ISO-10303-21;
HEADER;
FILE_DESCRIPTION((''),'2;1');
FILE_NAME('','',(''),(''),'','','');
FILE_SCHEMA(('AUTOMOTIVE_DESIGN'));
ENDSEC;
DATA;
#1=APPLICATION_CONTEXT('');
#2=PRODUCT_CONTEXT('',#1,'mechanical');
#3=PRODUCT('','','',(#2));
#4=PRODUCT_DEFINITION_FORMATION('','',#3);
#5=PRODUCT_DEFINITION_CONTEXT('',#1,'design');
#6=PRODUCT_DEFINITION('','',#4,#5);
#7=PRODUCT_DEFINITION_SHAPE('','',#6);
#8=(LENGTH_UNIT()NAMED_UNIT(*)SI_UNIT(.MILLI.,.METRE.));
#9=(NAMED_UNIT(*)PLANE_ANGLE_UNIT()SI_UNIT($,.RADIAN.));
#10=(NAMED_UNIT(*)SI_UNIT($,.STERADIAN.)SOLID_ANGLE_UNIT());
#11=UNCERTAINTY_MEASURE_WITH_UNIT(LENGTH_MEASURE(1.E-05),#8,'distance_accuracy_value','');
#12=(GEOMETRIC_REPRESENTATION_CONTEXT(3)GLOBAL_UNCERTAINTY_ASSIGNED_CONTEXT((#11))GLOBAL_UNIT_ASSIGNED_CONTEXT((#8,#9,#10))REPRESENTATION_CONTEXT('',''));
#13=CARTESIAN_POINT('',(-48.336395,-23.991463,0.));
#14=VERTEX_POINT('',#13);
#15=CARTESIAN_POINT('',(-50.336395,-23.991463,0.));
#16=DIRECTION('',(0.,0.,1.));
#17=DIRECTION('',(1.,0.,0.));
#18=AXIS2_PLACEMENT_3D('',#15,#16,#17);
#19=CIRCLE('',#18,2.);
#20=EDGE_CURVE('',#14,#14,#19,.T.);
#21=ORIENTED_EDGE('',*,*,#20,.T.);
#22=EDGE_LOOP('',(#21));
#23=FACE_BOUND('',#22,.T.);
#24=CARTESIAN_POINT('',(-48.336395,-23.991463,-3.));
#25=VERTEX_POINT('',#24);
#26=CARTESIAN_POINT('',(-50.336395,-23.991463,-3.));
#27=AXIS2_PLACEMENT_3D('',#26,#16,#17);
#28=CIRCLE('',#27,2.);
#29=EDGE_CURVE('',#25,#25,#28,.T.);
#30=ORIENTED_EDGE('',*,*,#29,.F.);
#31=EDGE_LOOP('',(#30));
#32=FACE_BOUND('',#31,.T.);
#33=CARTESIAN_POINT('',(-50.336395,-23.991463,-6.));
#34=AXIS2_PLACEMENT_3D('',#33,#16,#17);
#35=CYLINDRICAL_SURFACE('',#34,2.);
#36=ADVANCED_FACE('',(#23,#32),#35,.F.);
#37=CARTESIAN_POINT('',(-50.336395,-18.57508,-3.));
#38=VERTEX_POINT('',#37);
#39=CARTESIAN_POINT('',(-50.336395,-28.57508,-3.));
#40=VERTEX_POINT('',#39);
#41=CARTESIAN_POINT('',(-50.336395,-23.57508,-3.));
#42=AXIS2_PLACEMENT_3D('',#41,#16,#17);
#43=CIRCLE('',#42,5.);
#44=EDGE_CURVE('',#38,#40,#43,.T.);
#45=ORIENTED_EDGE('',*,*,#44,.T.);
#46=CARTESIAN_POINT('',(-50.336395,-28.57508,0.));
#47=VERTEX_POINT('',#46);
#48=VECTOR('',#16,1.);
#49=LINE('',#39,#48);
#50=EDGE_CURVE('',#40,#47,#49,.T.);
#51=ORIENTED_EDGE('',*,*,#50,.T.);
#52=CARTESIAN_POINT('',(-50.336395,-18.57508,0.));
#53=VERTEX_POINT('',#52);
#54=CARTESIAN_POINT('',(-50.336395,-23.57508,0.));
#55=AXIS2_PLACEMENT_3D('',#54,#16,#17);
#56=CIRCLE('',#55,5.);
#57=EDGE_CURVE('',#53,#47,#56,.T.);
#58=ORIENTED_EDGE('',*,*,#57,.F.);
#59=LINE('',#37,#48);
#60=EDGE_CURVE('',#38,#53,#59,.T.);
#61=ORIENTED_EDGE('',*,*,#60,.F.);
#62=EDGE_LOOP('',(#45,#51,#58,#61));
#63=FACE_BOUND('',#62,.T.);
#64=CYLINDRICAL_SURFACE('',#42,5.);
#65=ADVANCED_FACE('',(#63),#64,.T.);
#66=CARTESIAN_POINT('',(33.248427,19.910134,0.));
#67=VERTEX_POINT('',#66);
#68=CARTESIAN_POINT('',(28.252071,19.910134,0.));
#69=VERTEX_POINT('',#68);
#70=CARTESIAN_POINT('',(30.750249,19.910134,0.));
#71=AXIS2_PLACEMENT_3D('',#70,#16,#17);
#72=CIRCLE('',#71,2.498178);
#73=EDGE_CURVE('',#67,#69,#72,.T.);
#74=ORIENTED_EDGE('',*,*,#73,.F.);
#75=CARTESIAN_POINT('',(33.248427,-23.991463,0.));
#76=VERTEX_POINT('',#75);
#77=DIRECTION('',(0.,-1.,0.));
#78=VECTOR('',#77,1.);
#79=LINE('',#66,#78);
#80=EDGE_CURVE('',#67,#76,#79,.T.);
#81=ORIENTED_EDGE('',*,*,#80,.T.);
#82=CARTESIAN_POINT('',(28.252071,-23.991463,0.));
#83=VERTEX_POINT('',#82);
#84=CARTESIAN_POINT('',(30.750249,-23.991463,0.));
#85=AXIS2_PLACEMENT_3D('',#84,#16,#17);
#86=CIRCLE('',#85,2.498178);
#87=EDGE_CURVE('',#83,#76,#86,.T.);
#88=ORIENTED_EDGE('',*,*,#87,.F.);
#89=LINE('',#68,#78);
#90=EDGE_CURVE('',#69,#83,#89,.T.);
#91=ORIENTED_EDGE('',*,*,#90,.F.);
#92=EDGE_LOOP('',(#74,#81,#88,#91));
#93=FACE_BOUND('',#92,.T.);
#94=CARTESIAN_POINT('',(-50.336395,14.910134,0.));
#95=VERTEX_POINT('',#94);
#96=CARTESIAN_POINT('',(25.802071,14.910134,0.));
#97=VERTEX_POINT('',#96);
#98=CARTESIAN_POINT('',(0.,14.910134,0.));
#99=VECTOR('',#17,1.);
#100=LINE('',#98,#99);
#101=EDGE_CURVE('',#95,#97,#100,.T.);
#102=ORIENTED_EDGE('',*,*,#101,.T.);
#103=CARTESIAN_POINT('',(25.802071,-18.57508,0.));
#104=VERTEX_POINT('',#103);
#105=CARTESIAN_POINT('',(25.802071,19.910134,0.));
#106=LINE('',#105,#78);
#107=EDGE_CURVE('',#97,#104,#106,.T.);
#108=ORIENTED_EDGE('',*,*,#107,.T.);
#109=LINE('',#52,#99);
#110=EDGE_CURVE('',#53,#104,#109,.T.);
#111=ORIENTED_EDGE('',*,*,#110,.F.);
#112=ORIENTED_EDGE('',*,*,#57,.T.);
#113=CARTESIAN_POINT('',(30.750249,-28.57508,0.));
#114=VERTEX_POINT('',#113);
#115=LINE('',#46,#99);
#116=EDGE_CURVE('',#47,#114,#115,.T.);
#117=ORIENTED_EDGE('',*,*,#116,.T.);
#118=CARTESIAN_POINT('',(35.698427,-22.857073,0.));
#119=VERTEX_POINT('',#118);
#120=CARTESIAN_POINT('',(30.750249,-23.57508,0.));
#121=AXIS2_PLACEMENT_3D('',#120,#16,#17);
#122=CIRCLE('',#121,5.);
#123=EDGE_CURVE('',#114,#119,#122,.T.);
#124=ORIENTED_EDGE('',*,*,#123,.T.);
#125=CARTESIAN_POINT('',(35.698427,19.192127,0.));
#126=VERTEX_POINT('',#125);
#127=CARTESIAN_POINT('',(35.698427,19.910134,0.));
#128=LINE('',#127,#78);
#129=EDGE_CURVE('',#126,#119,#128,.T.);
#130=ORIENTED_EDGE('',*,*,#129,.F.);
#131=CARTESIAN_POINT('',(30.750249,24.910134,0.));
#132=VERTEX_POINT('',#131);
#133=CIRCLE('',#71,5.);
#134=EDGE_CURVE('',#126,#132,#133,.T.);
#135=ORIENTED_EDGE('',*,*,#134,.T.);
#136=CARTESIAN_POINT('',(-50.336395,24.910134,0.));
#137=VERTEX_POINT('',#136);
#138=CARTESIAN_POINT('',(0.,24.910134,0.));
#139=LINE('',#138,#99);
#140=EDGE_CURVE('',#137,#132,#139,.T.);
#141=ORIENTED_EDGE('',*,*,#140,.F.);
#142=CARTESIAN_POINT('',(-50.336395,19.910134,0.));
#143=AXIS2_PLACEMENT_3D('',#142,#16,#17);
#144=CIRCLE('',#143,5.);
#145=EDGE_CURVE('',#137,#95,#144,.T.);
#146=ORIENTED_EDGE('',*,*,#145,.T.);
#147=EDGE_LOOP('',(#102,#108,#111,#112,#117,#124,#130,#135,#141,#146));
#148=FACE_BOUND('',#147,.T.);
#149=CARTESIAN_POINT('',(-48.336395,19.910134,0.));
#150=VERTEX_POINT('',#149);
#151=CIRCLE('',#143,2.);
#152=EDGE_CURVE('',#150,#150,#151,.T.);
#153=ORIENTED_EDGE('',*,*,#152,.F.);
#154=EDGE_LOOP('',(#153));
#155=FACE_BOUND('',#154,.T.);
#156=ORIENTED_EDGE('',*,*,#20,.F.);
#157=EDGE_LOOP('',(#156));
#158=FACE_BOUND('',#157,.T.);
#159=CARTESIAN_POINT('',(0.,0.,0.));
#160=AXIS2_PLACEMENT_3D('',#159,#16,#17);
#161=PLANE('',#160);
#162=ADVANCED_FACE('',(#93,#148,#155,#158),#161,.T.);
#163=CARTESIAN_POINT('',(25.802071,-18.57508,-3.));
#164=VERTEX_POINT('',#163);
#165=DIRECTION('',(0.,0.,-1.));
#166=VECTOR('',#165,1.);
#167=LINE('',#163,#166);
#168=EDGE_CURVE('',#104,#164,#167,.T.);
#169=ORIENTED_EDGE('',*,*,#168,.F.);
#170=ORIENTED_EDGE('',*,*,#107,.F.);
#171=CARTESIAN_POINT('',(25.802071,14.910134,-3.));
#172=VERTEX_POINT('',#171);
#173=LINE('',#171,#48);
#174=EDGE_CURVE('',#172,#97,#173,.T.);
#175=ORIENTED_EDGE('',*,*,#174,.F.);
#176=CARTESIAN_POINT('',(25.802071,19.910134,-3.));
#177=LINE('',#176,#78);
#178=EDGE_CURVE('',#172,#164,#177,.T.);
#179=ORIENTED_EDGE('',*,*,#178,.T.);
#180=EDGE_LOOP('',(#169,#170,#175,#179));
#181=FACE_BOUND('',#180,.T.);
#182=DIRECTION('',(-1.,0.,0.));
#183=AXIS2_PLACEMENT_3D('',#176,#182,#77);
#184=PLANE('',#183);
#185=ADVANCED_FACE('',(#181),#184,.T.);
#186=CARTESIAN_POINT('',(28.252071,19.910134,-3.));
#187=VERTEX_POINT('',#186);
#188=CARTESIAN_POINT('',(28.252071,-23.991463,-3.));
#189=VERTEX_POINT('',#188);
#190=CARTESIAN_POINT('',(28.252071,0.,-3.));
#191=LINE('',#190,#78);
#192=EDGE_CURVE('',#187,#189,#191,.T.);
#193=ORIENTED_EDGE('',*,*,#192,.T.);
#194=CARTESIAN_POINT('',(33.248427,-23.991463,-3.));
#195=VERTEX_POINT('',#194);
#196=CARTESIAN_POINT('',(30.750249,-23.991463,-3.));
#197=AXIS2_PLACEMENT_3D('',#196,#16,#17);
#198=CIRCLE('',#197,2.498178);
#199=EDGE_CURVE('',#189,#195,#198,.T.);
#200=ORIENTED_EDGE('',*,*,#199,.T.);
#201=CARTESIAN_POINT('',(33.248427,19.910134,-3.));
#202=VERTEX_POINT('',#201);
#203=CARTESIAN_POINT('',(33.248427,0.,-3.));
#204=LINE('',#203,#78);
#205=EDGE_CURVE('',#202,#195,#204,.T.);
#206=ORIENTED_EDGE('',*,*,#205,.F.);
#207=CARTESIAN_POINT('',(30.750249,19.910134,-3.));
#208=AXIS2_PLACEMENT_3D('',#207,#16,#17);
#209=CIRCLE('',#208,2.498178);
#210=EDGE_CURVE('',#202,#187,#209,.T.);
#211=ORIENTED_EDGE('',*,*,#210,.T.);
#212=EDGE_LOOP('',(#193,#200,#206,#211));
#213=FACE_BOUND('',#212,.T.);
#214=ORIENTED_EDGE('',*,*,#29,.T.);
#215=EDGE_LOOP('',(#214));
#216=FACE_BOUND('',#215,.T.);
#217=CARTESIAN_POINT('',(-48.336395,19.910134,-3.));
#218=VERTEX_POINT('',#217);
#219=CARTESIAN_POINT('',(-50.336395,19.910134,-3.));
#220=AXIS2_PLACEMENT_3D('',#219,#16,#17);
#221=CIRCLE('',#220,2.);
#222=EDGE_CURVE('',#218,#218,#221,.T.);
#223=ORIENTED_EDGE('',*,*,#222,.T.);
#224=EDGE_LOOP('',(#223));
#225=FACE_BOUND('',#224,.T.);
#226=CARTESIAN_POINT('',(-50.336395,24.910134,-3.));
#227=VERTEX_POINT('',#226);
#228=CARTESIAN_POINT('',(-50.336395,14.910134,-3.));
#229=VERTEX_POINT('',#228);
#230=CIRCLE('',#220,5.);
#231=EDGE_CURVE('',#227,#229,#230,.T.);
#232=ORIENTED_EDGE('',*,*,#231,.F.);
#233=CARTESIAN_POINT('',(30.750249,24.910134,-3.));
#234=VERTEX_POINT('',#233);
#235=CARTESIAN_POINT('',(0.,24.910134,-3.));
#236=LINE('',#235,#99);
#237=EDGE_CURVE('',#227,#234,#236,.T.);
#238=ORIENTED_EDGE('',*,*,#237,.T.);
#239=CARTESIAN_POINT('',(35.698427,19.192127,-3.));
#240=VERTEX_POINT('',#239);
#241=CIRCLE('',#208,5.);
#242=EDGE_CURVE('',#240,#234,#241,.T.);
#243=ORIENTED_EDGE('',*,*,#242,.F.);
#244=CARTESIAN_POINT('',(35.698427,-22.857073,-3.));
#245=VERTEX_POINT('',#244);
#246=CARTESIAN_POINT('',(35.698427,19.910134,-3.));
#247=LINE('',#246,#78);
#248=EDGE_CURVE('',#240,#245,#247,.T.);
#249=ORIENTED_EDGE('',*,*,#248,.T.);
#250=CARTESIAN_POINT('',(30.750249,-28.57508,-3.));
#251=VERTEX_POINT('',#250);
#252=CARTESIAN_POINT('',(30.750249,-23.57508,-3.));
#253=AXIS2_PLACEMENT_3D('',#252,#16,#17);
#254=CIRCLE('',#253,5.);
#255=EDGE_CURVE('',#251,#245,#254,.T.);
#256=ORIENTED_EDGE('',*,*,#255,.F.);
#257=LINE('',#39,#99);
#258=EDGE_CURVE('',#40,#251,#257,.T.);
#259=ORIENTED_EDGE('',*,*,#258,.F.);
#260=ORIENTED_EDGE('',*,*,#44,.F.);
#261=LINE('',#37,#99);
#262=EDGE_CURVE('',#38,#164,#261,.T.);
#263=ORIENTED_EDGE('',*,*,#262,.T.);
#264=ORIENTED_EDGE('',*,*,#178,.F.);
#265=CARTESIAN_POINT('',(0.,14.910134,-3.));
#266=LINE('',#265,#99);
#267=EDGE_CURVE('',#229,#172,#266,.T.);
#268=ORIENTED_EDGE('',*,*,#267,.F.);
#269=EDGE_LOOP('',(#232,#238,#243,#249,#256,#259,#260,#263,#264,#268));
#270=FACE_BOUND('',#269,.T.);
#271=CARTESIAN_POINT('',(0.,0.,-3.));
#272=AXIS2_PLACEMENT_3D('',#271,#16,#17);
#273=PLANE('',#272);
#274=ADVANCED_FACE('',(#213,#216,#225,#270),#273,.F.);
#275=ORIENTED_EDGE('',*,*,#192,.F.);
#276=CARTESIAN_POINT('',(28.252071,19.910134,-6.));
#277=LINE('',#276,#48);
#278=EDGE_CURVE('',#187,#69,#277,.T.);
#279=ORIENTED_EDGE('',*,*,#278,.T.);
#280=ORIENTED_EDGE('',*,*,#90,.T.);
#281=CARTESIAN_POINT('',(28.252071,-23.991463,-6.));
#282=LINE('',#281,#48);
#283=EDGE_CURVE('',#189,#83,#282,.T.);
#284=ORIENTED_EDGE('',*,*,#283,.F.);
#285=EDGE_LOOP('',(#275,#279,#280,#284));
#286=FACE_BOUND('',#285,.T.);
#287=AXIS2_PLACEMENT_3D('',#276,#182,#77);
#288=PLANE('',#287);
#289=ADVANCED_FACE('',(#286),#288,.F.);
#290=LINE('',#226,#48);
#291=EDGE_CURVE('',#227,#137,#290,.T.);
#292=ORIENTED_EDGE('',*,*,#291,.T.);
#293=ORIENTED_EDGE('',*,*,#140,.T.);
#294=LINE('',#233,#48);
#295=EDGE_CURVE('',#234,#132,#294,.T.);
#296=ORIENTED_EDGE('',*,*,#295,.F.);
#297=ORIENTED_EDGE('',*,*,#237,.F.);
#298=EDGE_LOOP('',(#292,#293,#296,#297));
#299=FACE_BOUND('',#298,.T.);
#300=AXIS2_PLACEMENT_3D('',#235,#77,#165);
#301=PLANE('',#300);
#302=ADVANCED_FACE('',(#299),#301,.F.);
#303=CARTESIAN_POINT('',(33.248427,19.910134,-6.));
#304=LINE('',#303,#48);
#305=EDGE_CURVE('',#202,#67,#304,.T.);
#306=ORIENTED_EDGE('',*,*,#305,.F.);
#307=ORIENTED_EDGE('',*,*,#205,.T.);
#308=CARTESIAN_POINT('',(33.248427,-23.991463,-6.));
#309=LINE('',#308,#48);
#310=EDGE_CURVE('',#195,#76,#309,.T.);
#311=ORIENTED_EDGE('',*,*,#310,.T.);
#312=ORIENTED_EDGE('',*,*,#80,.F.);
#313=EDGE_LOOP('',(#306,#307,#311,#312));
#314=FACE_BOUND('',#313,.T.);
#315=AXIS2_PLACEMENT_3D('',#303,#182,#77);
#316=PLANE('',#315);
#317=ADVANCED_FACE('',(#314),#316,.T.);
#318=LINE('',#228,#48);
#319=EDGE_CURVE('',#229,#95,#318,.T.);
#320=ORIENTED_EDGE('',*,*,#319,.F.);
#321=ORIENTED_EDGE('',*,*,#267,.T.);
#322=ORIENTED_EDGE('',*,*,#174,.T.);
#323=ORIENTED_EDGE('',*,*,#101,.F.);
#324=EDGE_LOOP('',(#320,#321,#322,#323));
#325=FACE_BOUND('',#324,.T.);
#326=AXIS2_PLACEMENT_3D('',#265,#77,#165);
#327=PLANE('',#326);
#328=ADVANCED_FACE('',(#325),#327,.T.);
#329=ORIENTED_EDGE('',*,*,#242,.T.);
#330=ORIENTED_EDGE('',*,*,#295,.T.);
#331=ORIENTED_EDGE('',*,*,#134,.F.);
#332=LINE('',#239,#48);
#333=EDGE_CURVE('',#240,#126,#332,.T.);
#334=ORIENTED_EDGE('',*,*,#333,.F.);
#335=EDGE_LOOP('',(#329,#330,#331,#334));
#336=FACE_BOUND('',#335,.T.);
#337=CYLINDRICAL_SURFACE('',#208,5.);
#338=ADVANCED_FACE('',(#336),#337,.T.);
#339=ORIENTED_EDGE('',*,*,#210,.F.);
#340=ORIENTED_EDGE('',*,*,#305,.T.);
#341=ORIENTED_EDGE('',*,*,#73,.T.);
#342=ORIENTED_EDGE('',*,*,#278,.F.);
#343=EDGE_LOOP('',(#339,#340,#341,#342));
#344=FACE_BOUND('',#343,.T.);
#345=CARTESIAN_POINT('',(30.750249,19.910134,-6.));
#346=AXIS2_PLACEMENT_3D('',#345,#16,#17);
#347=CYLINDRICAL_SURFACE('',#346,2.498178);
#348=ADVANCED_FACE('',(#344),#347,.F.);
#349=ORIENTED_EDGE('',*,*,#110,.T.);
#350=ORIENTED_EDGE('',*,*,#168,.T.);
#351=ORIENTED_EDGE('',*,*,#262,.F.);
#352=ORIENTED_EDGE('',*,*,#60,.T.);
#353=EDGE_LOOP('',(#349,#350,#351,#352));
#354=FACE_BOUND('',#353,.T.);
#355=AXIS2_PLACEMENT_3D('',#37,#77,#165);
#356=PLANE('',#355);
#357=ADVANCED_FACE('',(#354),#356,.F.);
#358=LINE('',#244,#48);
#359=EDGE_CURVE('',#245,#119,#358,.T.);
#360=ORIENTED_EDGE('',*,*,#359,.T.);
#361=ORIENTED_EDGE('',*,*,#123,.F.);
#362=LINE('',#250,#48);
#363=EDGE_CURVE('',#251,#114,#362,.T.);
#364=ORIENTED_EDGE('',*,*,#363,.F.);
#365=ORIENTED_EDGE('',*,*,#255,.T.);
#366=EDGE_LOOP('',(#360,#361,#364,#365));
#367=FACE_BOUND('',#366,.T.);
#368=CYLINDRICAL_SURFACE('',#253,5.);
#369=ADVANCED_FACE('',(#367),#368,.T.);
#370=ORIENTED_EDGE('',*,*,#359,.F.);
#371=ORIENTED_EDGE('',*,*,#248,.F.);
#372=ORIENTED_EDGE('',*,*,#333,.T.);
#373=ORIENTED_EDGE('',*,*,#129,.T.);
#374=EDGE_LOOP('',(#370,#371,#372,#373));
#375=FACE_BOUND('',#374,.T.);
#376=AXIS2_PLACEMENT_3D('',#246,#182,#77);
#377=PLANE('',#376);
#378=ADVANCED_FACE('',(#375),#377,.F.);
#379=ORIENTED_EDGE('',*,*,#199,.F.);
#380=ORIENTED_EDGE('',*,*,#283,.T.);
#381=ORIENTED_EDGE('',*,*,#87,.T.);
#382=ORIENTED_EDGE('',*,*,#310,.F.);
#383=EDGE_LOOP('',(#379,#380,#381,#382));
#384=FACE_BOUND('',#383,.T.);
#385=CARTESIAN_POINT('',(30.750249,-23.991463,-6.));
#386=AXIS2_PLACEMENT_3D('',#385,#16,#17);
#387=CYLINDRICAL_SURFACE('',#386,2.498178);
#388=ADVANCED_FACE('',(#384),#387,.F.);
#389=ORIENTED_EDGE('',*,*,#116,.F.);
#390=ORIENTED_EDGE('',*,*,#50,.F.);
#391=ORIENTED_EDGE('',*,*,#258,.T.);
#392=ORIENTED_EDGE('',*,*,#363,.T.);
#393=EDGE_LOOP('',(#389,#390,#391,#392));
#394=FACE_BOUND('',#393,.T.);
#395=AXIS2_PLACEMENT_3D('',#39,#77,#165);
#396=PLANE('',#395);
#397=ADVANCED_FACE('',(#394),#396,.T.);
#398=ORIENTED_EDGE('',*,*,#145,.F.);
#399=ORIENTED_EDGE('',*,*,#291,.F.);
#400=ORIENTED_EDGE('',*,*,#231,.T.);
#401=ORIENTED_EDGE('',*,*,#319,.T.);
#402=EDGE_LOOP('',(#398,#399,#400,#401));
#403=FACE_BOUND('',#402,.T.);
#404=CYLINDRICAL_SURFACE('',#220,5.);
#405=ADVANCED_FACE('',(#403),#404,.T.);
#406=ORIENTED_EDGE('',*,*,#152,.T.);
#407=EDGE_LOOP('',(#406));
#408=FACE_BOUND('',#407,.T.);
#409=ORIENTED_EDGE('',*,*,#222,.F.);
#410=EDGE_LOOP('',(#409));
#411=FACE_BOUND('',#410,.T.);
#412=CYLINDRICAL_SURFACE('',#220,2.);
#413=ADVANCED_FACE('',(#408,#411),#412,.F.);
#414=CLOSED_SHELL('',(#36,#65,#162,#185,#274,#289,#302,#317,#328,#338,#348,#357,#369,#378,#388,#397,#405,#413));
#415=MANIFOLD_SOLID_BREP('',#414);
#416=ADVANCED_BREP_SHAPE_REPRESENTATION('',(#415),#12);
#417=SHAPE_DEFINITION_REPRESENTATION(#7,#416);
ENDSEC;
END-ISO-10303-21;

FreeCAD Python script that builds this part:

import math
import FreeCAD as App
import Part
import Sketcher
from FreeCAD import Vector

doc = App.newDocument("Part")
body = doc.addObject("PartDesign::Body", "Body")

sketch1 = body.newObject("Sketcher::SketchObject", "Sketch")
sketch1.AttachmentSupport = (doc.getObject("XY_Plane"), [""])
sketch1.MapMode = "FlatFace"
sketch1.addGeometry([
    Part.LineSegment(Vector(30.8, 24.9, 0), Vector(-50.3, 24.9, 0)),
    Part.ArcOfCircle(Part.Circle(Vector(-50.3, 19.9, 0), Vector(0, 0, 1), 5), math.radians(90), math.radians(270)),
    Part.LineSegment(Vector(-50.3, 14.9, 0), Vector(25.8, 14.9, 0)),
    Part.LineSegment(Vector(25.8, 14.9, 0), Vector(25.8, -18.6, 0)),
    Part.LineSegment(Vector(25.8, -18.6, 0), Vector(-50.3, -18.6, 0)),
    Part.ArcOfCircle(Part.Circle(Vector(-50.3, -23.6, 0), Vector(0, 0, 1), 5), math.radians(90), math.radians(270)),
    Part.LineSegment(Vector(-50.3, -28.6, 0), Vector(30.8, -28.6, 0)),
    Part.ArcOfCircle(Part.Circle(Vector(30.8, -23.6, 0), Vector(0, 0, 1), 5), math.radians(-90), math.radians(8)),
    Part.LineSegment(Vector(35.7, -22.9, 0), Vector(35.7, 19.2, 0)),
    Part.ArcOfCircle(Part.Circle(Vector(30.8, 19.9, 0), Vector(0, 0, 1), 5), math.radians(-8), math.radians(90)),
    Part.Circle(Vector(-50.3, 19.9, 0), Vector(0, 0, 1), 2),
], False)
sketch1.addConstraint([
    Sketcher.Constraint("Tangent", 0, 2, 1, 1),
    Sketcher.Constraint("Tangent", 1, 2, 2, 1),
    Sketcher.Constraint("Coincident", 2, 2, 3, 1),
    Sketcher.Constraint("Coincident", 3, 2, 4, 1),
    Sketcher.Constraint("Tangent", 4, 2, 5, 1),
    Sketcher.Constraint("Tangent", 5, 2, 6, 1),
    Sketcher.Constraint("Tangent", 6, 2, 7, 1),
    Sketcher.Constraint("Coincident", 7, 2, 8, 1),
    Sketcher.Constraint("Coincident", 8, 2, 9, 1),
    Sketcher.Constraint("Tangent", 9, 2, 0, 1),
    Sketcher.Constraint("Horizontal", 0),
    Sketcher.Constraint("Horizontal", 2),
    Sketcher.Constraint("Vertical", 3),
    Sketcher.Constraint("Horizontal", 4),
    Sketcher.Constraint("Horizontal", 6),
    Sketcher.Constraint("Vertical", 8),
    Sketcher.Constraint("Coincident", 10, 3, 1, 3),
    Sketcher.Constraint("Equal", 1, 5),
    Sketcher.Constraint("Equal", 5, 7),
    Sketcher.Constraint("Equal", 7, 9),
    Sketcher.Constraint("Vertical", 1, 3, 5, 3),
    Sketcher.Constraint("Vertical", 7, 3, 9, 3),
    Sketcher.Constraint("Diameter", 10, 4.0),
    Sketcher.Constraint("Radius", 1, 5.0),
    Sketcher.Constraint("DistanceY", 8, 1, 8, 2, 42.0492),
    Sketcher.Constraint("DistanceX", 0, 2, 0, 1, 81.086644),
    Sketcher.Constraint("DistanceX", 2, 1, 2, 2, 76.138466),
    Sketcher.Constraint("DistanceY", 3, 2, 3, 1, 33.485214),
    Sketcher.Constraint("DistanceY", 5, 3, -1, 1, 23.57508),
    Sketcher.Constraint("DistanceX", -1, 1, 7, 3, 30.750249),
])
pad1 = body.newObject("PartDesign::Pad", "Pad")
pad1.Profile = sketch1
pad1.Length = 3
pad1.Reversed = True

sketch2 = body.newObject("Sketcher::SketchObject", "Sketch001")
sketch2.AttachmentSupport = (doc.getObject("XY_Plane"), [""])
sketch2.MapMode = "FlatFace"
sketch2.addGeometry(Part.Circle(Vector(-50.3, -24, 0), Vector(0, 0, 1), 2), False)
sketch2.addConstraint([
    Sketcher.Constraint("Diameter", 0, 4.0),
    Sketcher.Constraint("DistanceX", 0, 3, -1, 1, 50.336395),
    Sketcher.Constraint("DistanceY", 0, 3, -1, 1, 23.991463),
])
pocket1 = body.newObject("PartDesign::Pocket", "Pocket")
pocket1.Profile = sketch2
pocket1.Length = 6

sketch3 = body.newObject("Sketcher::SketchObject", "Sketch002")
sketch3.AttachmentSupport = (doc.getObject("XY_Plane"), [""])
sketch3.MapMode = "FlatFace"
sketch3.addGeometry([
    Part.LineSegment(Vector(33.2, -24, 0), Vector(33.2, 19.9, 0)),
    Part.ArcOfCircle(Part.Circle(Vector(30.8, 19.9, 0), Vector(0, 0, 1), 2.5), math.radians(0), math.radians(180)),
    Part.LineSegment(Vector(28.3, 19.9, 0), Vector(28.3, -24, 0)),
    Part.ArcOfCircle(Part.Circle(Vector(30.8, -24, 0), Vector(0, 0, 1), 2.5), math.radians(180), math.radians(360)),
], False)
sketch3.addConstraint([
    Sketcher.Constraint("Tangent", 0, 2, 1, 1),
    Sketcher.Constraint("Tangent", 1, 2, 2, 1),
    Sketcher.Constraint("Tangent", 2, 2, 3, 1),
    Sketcher.Constraint("Tangent", 3, 2, 0, 1),
    Sketcher.Constraint("Vertical", 0),
    Sketcher.Constraint("Vertical", 2),
    Sketcher.Constraint("Radius", 1, 2.498178),
    Sketcher.Constraint("DistanceY", 0, 1, 0, 2, 43.901597),
    Sketcher.Constraint("DistanceX", -1, 1, 1, 3, 30.750249),
    Sketcher.Constraint("DistanceY", -1, 1, 1, 3, 19.910134),
])
pocket2 = body.newObject("PartDesign::Pocket", "Pocket001")
pocket2.Profile = sketch3
pocket2.Length = 6

doc.recompute()
